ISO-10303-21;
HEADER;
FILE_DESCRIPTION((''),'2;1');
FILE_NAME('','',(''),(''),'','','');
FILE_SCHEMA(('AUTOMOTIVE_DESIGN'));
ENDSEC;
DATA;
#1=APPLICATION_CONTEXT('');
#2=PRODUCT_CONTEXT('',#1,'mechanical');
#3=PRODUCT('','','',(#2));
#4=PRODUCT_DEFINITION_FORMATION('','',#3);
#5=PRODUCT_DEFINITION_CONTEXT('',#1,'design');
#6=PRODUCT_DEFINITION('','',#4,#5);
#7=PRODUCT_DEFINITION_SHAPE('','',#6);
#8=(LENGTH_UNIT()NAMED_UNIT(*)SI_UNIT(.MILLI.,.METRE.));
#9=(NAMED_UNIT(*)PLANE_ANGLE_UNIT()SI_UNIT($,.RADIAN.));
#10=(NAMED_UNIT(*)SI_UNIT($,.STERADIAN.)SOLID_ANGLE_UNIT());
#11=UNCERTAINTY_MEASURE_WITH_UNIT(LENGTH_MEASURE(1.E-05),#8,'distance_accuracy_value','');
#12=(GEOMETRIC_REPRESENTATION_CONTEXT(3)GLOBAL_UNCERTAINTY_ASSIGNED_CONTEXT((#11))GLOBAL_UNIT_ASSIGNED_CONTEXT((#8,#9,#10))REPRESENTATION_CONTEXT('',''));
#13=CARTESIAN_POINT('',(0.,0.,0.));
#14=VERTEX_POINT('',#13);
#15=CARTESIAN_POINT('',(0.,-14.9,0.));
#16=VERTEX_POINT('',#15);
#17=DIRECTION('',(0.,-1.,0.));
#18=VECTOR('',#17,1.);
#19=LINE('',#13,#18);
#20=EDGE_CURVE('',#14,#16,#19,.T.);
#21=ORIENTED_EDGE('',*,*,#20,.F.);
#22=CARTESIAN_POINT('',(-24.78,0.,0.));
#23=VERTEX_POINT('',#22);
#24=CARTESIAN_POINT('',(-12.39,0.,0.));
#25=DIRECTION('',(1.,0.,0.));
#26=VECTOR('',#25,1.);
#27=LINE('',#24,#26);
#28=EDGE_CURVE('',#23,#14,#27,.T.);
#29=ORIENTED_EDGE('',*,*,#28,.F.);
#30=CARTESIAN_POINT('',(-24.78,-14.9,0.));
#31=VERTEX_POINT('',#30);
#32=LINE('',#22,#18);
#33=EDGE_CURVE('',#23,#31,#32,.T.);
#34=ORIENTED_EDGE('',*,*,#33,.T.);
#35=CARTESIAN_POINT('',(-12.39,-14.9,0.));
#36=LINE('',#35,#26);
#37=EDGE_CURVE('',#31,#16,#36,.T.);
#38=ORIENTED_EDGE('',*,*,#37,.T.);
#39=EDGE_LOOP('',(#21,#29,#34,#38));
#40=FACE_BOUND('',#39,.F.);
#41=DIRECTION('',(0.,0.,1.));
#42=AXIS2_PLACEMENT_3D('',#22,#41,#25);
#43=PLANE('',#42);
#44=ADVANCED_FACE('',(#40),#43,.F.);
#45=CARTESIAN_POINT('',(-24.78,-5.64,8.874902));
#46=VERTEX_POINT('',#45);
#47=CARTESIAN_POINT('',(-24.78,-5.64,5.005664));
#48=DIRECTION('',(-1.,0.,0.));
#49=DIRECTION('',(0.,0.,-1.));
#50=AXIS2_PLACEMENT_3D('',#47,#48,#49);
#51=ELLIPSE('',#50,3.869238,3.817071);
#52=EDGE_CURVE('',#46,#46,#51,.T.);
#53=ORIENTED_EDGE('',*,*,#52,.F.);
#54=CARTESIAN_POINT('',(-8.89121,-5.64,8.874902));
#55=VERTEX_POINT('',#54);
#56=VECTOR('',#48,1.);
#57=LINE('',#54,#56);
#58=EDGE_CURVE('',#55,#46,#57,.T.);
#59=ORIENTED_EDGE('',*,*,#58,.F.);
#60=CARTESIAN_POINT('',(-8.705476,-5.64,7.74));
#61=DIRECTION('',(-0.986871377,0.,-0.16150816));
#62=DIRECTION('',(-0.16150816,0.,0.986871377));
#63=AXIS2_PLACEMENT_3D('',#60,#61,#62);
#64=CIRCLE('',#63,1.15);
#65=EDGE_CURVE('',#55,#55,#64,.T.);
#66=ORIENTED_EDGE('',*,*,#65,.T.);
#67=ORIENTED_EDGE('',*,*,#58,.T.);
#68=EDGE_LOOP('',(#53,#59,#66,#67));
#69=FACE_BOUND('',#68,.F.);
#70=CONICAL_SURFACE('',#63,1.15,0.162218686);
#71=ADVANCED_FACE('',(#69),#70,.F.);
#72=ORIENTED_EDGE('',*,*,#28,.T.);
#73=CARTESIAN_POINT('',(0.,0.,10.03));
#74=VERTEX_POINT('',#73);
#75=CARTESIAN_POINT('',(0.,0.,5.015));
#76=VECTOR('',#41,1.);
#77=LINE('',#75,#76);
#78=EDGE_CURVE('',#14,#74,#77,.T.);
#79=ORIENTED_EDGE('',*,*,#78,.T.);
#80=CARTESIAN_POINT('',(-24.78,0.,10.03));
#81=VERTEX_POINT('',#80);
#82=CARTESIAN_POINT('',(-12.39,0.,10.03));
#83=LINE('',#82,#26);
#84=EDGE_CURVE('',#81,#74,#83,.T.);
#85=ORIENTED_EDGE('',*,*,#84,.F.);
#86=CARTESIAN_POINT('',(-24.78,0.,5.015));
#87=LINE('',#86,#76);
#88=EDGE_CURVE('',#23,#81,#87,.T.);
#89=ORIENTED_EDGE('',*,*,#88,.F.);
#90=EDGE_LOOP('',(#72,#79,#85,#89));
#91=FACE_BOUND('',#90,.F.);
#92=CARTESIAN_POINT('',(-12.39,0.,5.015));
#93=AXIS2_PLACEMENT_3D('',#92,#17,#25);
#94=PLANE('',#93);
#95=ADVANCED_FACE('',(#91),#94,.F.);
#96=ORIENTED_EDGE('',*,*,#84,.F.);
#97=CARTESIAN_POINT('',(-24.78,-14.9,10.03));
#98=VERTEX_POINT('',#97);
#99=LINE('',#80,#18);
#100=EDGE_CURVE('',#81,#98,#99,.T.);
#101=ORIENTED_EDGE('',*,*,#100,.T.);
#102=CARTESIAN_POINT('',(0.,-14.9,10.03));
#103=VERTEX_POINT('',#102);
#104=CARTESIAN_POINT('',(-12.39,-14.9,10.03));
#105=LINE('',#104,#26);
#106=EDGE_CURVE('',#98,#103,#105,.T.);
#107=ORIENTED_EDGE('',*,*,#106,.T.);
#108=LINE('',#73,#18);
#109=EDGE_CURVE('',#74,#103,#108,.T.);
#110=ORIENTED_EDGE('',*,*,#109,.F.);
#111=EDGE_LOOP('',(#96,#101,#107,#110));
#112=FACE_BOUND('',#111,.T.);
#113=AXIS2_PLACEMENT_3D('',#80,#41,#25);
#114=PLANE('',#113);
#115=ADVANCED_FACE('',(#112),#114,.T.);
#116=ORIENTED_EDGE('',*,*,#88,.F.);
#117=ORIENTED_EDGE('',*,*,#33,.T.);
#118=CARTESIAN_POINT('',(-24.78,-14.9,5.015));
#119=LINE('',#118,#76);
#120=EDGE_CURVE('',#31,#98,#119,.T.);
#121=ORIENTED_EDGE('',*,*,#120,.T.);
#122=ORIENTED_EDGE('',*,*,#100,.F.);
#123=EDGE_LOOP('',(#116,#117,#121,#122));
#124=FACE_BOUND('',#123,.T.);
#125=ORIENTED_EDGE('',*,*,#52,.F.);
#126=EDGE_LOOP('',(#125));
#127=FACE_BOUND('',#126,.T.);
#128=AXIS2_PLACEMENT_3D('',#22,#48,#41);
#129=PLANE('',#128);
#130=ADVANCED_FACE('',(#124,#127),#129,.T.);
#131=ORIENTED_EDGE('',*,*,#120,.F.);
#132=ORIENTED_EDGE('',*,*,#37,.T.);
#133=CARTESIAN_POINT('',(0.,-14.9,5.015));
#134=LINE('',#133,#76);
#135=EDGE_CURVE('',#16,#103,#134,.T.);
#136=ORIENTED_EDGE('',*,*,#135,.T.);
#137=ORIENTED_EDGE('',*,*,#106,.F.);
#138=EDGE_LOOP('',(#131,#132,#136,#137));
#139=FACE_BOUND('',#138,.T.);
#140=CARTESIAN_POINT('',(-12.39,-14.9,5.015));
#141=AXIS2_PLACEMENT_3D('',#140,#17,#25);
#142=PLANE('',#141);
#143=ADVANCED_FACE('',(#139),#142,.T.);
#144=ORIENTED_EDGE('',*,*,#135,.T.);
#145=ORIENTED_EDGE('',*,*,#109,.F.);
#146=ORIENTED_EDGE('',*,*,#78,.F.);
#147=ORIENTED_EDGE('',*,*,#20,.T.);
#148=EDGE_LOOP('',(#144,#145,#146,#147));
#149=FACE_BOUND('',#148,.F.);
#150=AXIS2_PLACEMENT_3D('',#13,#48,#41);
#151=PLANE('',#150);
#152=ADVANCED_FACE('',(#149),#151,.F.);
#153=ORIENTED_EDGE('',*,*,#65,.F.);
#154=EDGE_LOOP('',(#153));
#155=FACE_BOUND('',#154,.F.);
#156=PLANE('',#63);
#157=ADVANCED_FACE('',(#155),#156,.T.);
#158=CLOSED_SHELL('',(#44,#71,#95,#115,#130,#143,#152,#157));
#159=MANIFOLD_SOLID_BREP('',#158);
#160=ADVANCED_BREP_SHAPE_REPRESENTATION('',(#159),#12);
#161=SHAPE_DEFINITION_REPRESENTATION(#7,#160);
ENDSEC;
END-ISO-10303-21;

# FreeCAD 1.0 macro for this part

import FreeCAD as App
import Part
import Sketcher

doc = App.newDocument("Part")
body = doc.addObject("PartDesign::Body", "Body")

sketch1 = body.newObject("Sketcher::SketchObject", "Sketch")
sketch1.AttachmentSupport = (doc.getObject("XZ_Plane"), [""])
sketch1.MapMode = "FlatFace"
sketch1.addGeometry([
    Part.LineSegment(App.Vector(-25, 10, 0), App.Vector(-25, 0, 0)),
    Part.LineSegment(App.Vector(-25, 0, 0), App.Vector(0, 0, 0)),
    Part.LineSegment(App.Vector(0, 0, 0), App.Vector(0, 10, 0)),
    Part.LineSegment(App.Vector(0, 10, 0), App.Vector(-25, 10, 0)),
], False)
sketch1.addConstraint([
    Sketcher.Constraint("Coincident", 0, 2, 1, 1),
    Sketcher.Constraint("Coincident", 1, 2, 2, 1),
    Sketcher.Constraint("Coincident", 2, 2, 3, 1),
    Sketcher.Constraint("Coincident", 3, 2, 0, 1),
    Sketcher.Constraint("Vertical", 0),
    Sketcher.Constraint("Horizontal", 1),
    Sketcher.Constraint("Vertical", 2),
    Sketcher.Constraint("Horizontal", 3),
    Sketcher.Constraint("Coincident", 1, 2, -1, 1),
    Sketcher.Constraint("DistanceX", 1, 1, 1, 2, 24.78),
    Sketcher.Constraint("DistanceY", 0, 2, 0, 1, 10.03),
])
pad1 = body.newObject("PartDesign::Pad", "Pad")
pad1.Profile = sketch1
pad1.Length = 14.9

sketch2 = body.newObject("Sketcher::SketchObject", "Sketch001")
sketch2.AttachmentSupport = (doc.getObject("XZ_Plane"), [""])
sketch2.MapMode = "FlatFace"
sketch2.AttachmentOffset = App.Placement(App.Vector(0, 0, 5.64), App.Rotation())
sketch2.addGeometry([
    Part.LineSegment(App.Vector(-8.7, 7.7, 0), App.Vector(-8.9, 8.9, 0)),
    Part.LineSegment(App.Vector(-8.9, 8.9, 0), App.Vector(-26.7, 8.9, 0)),
    Part.LineSegment(App.Vector(-26.7, 8.9, 0), App.Vector(-26, 4.9, 0)),
    Part.LineSegment(App.Vector(-26, 4.9, 0), App.Vector(-8.7, 7.7, 0)),
], False)
sketch2.addGeometry(Part.LineSegment(App.Vector(-8.7, 7.7, 0), App.Vector(-26, 4.9, 0)), True)
sketch2.addConstraint([
    Sketcher.Constraint("Coincident", 0, 2, 1, 1),
    Sketcher.Constraint("Coincident", 1, 2, 2, 1),
    Sketcher.Constraint("Coincident", 2, 2, 3, 1),
    Sketcher.Constraint("Coincident", 3, 2, 0, 1),
    Sketcher.Constraint("Horizontal", 1),
    Sketcher.Constraint("Coincident", 4, 1, 3, 2),
    Sketcher.Constraint("Coincident", 4, 2, 2, 2),
    Sketcher.Constraint("Parallel", 0, 2),
    Sketcher.Constraint("Perpendicular", 2, 3),
    Sketcher.Constraint("DistanceX", 1, 2, 1, 1, 17.77),
    Sketcher.Constraint("Distance", 0, 1.15),
    Sketcher.Constraint("Distance", 2, 4.02),
    Sketcher.Constraint("DistanceY", -1, 1, 3, 2, 7.74),
    Sketcher.Constraint("DistanceX", 0, 2, -1, 1, 8.89121),
])
groove = body.newObject("PartDesign::Groove", "Groove")
groove.Profile = sketch2
groove.ReferenceAxis = (sketch2, ["Axis0"])
groove.Angle = 360

doc.recompute()
